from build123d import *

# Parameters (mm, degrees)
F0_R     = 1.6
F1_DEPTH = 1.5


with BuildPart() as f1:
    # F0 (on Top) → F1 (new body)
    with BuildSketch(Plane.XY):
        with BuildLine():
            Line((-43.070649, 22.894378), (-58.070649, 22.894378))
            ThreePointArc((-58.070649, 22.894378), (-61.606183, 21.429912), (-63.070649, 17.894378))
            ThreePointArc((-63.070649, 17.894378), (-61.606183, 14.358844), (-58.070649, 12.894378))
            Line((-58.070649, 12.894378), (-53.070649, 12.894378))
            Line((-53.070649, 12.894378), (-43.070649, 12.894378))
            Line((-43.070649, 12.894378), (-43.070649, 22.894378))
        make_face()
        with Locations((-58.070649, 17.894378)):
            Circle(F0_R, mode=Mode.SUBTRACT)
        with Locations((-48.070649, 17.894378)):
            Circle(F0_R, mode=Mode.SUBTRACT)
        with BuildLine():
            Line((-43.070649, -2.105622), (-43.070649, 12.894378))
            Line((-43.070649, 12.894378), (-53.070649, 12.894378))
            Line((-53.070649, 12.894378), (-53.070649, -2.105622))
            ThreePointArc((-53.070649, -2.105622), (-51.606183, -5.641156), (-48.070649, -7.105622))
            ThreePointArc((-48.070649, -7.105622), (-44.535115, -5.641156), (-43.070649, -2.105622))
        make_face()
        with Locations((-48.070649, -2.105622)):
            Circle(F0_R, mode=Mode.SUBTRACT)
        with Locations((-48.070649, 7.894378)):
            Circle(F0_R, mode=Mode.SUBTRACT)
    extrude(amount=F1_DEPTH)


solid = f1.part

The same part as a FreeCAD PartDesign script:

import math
import FreeCAD as App
import Part
import Sketcher
from FreeCAD import Vector
Q = App.Units.Quantity

doc = App.newDocument("Part")
body = doc.addObject("PartDesign::Body", "Body")

sketch1 = body.newObject("Sketcher::SketchObject", "Sketch")
sketch1.AttachmentSupport = (doc.getObject("XY_Plane"), [""])
sketch1.MapMode = "FlatFace"
sketch1.addGeometry(Part.LineSegment(Vector(-43.1, 22.9, 0), Vector(-58.1, 22.9, 0)), False)
sketch1.addGeometry(Part.ArcOfCircle(Part.Circle(Vector(-58.1, 17.9, 0), Vector(0, 0, 1), 5), math.radians(90), math.radians(180)), False)
sketch1.addGeometry(Part.ArcOfCircle(Part.Circle(Vector(-58.1, 17.9, 0), Vector(0, 0, 1), 5), math.radians(180), math.radians(270)), False)
sketch1.addGeometry(Part.LineSegment(Vector(-58.1, 12.9, 0), Vector(-53.1, 12.9, 0)), False)
sketch1.addGeometry(Part.LineSegment(Vector(-53.1, 12.9, 0), Vector(-53.1, -2.1, 0)), False)
sketch1.addGeometry(Part.ArcOfCircle(Part.Circle(Vector(-48.1, -2.1, 0), Vector(0, 0, 1), 5), math.radians(180), math.radians(270)), False)
sketch1.addGeometry(Part.ArcOfCircle(Part.Circle(Vector(-48.1, -2.1, 0), Vector(0, 0, 1), 5), math.radians(-90), math.radians(0)), False)
sketch1.addGeometry(Part.LineSegment(Vector(-43.1, -2.1, 0), Vector(-43.1, 22.9, 0)), False)
sketch1.addGeometry(Part.Circle(Vector(-48.1, -2.1, 0), Vector(0, 0, 1), 1.6), False)
sketch1.addGeometry(Part.Circle(Vector(-58.1, 17.9, 0), Vector(0, 0, 1), 1.6), False)
sketch1.addGeometry(Part.Circle(Vector(-48.1, 7.9, 0), Vector(0, 0, 1), 1.6), False)
sketch1.addGeometry(Part.Circle(Vector(-48.1, 17.9, 0), Vector(0, 0, 1), 1.6), False)
sketch1.addConstraint(Sketcher.Constraint("Tangent", 0, 2, 1, 1))
sketch1.addConstraint(Sketcher.Constraint("Tangent", 1, 2, 2, 1))
sketch1.addConstraint(Sketcher.Constraint("Tangent", 2, 2, 3, 1))
sketch1.addConstraint(Sketcher.Constraint("Coincident", 3, 2, 4, 1))
sketch1.addConstraint(Sketcher.Constraint("Tangent", 4, 2, 5, 1))
sketch1.addConstraint(Sketcher.Constraint("Tangent", 5, 2, 6, 1))
sketch1.addConstraint(Sketcher.Constraint("Tangent", 6, 2, 7, 1))
sketch1.addConstraint(Sketcher.Constraint("Coincident", 7, 2, 0, 1))
sketch1.addConstraint(Sketcher.Constraint("Horizontal", 0))
sketch1.addConstraint(Sketcher.Constraint("Horizontal", 3))
sketch1.addConstraint(Sketcher.Constraint("Vertical", 4))
sketch1.addConstraint(Sketcher.Constraint("Vertical", 7))
sketch1.addConstraint(Sketcher.Constraint("Coincident", 8, 3, 5, 3))
sketch1.addConstraint(Sketcher.Constraint("Coincident", 9, 3, 1, 3))
sketch1.addConstraint(Sketcher.Constraint("Equal", 1, 2))
sketch1.addConstraint(Sketcher.Constraint("Equal", 2, 5))
sketch1.addConstraint(Sketcher.Constraint("Equal", 5, 6))
sketch1.addConstraint(Sketcher.Constraint("Equal", 8, 9))
sketch1.addConstraint(Sketcher.Constraint("Equal", 9, 10))
sketch1.addConstraint(Sketcher.Constraint("Equal", 10, 11))
sketch1.addConstraint(Sketcher.Constraint("Horizontal", 9, 3, 11, 3))
sketch1.addConstraint(Sketcher.Constraint("Horizontal", 11, 3, 1, 2))
sketch1.addConstraint(Sketcher.Constraint("Vertical", 8, 3, 10, 3))
sketch1.addConstraint(Sketcher.Constraint("Vertical", 10, 3, 11, 3))
sketch1.addConstraint(Sketcher.Constraint("Vertical", 11, 3, 5, 2))
sketch1.addConstraint(Sketcher.Constraint("Equal", 0, 4))
sketch1.addConstraint(Sketcher.Constraint("Radius", 1, Q("5 mm")))
sketch1.addConstraint(Sketcher.Constraint("Diameter", 8, Q("3.2 mm")))
sketch1.addConstraint(Sketcher.Constraint("DistanceX", 0, 2, 0, 1, Q("15 mm")))
sketch1.addConstraint(Sketcher.Constraint("DistanceY", 8, 3, 10, 3, Q("10 mm")))
sketch1.addConstraint(Sketcher.Constraint("DistanceX", 1, 3, -1, 1, Q("58.070649 mm")))
sketch1.addConstraint(Sketcher.Constraint("DistanceY", -1, 1, 1, 3, Q("17.894378 mm")))
pad1 = body.newObject("PartDesign::Pad", "Pad")
pad1.Profile = sketch1
pad1.Length = 1.5

doc.recompute()
